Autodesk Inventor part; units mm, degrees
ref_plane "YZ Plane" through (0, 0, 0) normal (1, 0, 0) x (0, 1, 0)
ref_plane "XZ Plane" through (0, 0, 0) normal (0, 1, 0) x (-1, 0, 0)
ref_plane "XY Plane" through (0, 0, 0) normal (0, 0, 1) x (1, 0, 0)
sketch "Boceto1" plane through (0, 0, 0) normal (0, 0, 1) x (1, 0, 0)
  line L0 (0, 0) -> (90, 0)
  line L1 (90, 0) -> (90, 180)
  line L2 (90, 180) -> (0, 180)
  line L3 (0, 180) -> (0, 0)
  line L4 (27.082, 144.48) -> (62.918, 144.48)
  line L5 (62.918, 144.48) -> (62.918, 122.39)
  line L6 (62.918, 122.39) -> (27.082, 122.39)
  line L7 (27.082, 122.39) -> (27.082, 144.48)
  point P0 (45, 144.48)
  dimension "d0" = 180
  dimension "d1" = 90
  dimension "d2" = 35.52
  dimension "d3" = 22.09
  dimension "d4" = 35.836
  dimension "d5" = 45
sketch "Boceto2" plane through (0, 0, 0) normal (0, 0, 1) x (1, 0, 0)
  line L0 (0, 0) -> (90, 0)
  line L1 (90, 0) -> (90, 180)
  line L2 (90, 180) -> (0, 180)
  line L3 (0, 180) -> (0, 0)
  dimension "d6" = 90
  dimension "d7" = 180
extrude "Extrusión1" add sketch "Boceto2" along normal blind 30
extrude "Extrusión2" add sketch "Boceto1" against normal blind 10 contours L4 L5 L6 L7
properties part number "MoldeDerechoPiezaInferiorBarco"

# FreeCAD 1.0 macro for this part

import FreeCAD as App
import Part
import Sketcher
Q = App.Units.Quantity

doc = App.newDocument("Part")
body = doc.addObject("PartDesign::Body", "Body")

# Sketch on XY plane
sketch1 = doc.addObject("Sketcher::SketchObject", "Sketch")
body.addObject(sketch1)
sketch1.AttachmentSupport = (doc.XY_Plane, [""])
sketch1.MapMode = "FlatFace"
sketch1.addGeometry(Part.LineSegment(App.Vector(0, 180, 0), App.Vector(0, 0, 0)), False)
sketch1.addGeometry(Part.LineSegment(App.Vector(0, 0, 0), App.Vector(90, 0, 0)), False)
sketch1.addGeometry(Part.LineSegment(App.Vector(90, 0, 0), App.Vector(90, 180, 0)), False)
sketch1.addGeometry(Part.LineSegment(App.Vector(90, 180, 0), App.Vector(0, 180, 0)), False)
sketch1.addConstraint(Sketcher.Constraint("Coincident", 0, 2, 1, 1))
sketch1.addConstraint(Sketcher.Constraint("Coincident", 1, 2, 2, 1))
sketch1.addConstraint(Sketcher.Constraint("Coincident", 2, 2, 3, 1))
sketch1.addConstraint(Sketcher.Constraint("Coincident", 3, 2, 0, 1))
sketch1.addConstraint(Sketcher.Constraint("Vertical", 0))
sketch1.addConstraint(Sketcher.Constraint("Horizontal", 1))
sketch1.addConstraint(Sketcher.Constraint("Vertical", 2))
sketch1.addConstraint(Sketcher.Constraint("Horizontal", 3))
sketch1.addConstraint(Sketcher.Constraint("Coincident", 0, 2, -1, 1))
sketch1.addConstraint(Sketcher.Constraint("DistanceX", 1, 1, 1, 2, Q("90 mm")))
sketch1.addConstraint(Sketcher.Constraint("DistanceY", 0, 2, 0, 1, Q("180 mm")))
pad1 = doc.addObject("PartDesign::Pad", "Pad")
body.addObject(pad1)
pad1.Profile = sketch1
pad1.Length = 30

# Sketch on XY plane
sketch2 = doc.addObject("Sketcher::SketchObject", "Sketch001")
body.addObject(sketch2)
sketch2.AttachmentSupport = (doc.XY_Plane, [""])
sketch2.MapMode = "FlatFace"
sketch2.addGeometry(Part.LineSegment(App.Vector(62.918, 144.48, 0), App.Vector(27.082, 144.48, 0)), False)
sketch2.addGeometry(Part.LineSegment(App.Vector(27.082, 144.48, 0), App.Vector(27.082, 122.39, 0)), False)
sketch2.addGeometry(Part.LineSegment(App.Vector(27.082, 122.39, 0), App.Vector(62.918, 122.39, 0)), False)
sketch2.addGeometry(Part.LineSegment(App.Vector(62.918, 122.39, 0), App.Vector(62.918, 144.48, 0)), False)
sketch2.addConstraint(Sketcher.Constraint("Coincident", 0, 2, 1, 1))
sketch2.addConstraint(Sketcher.Constraint("Coincident", 1, 2, 2, 1))
sketch2.addConstraint(Sketcher.Constraint("Coincident", 2, 2, 3, 1))
sketch2.addConstraint(Sketcher.Constraint("Coincident", 3, 2, 0, 1))
sketch2.addConstraint(Sketcher.Constraint("Horizontal", 0))
sketch2.addConstraint(Sketcher.Constraint("Vertical", 1))
sketch2.addConstraint(Sketcher.Constraint("Horizontal", 2))
sketch2.addConstraint(Sketcher.Constraint("Vertical", 3))
sketch2.addConstraint(Sketcher.Constraint("DistanceY", 1, 2, 1, 1, Q("22.09 mm")))
sketch2.addConstraint(Sketcher.Constraint("DistanceX", 0, 2, 0, 1, Q("35.836 mm")))
sketch2.addConstraint(Sketcher.Constraint("DistanceY", -1, 1, 0, 2, Q("144.48 mm")))
sketch2.addConstraint(Sketcher.Constraint("DistanceX", -1, 1, 0, 2, Q("27.082 mm")))
pad2 = doc.addObject("PartDesign::Pad", "Pad001")
body.addObject(pad2)
pad2.Profile = sketch2
pad2.Length = 10
pad2.Reversed = True

doc.recompute()
